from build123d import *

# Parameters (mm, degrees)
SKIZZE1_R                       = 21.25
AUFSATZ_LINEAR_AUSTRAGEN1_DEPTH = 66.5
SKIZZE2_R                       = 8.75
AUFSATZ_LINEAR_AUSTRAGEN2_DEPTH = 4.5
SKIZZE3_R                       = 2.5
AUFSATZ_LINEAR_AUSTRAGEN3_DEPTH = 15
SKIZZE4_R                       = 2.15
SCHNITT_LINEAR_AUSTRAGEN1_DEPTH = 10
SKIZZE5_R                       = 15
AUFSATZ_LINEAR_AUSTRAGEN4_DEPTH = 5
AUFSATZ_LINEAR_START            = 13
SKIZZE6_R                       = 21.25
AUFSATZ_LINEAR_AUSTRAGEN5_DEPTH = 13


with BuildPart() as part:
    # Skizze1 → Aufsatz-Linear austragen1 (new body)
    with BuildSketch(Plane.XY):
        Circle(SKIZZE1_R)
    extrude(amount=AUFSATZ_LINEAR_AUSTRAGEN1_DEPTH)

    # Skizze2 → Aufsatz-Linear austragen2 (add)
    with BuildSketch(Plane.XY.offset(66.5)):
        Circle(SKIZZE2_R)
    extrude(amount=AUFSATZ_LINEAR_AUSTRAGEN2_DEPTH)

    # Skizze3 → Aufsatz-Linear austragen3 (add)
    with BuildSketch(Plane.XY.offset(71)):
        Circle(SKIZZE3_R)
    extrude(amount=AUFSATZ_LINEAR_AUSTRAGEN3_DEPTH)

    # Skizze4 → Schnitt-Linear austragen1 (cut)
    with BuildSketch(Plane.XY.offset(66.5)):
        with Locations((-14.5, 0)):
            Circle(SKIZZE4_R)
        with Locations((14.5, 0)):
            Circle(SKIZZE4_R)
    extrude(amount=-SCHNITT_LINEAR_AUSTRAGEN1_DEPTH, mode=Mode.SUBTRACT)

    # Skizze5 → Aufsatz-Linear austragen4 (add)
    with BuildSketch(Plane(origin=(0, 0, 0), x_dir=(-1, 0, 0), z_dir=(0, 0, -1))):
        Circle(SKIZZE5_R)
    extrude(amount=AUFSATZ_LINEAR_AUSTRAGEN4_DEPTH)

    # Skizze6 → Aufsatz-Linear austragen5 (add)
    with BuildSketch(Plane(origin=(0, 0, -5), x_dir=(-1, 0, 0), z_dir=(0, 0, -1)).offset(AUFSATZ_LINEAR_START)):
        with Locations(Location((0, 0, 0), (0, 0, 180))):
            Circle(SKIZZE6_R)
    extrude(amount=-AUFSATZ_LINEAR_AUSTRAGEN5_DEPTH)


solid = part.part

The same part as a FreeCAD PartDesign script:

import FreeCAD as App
import Part
import Sketcher
from FreeCAD import Vector

doc = App.newDocument("Part")
body = doc.addObject("PartDesign::Body", "Body")

# Sketch on XY plane
sketch1 = body.newObject("Sketcher::SketchObject", "Sketch")
sketch1.AttachmentSupport = (doc.getObject("XY_Plane"), [""])
sketch1.MapMode = "FlatFace"
sketch1.addGeometry(Part.Circle(Vector(0, 0, 0), Vector(0, 0, 1), 21), False)
sketch1.addConstraint([
    Sketcher.Constraint("Coincident", 0, 3, -1, 1),
    Sketcher.Constraint("Diameter", 0, 42.5),
])
pad1 = body.newObject("PartDesign::Pad", "Pad")
pad1.Profile = sketch1
pad1.Length = 66.5

# Sketch on XY plane
sketch2 = body.newObject("Sketcher::SketchObject", "Sketch001")
sketch2.AttachmentSupport = (doc.getObject("XY_Plane"), [""])
sketch2.MapMode = "FlatFace"
sketch2.AttachmentOffset = App.Placement(Vector(0, 0, 66.5), App.Rotation())
sketch2.addGeometry(Part.Circle(Vector(0, 0, 0), Vector(0, 0, 1), 9), False)
sketch2.addConstraint([
    Sketcher.Constraint("Coincident", 0, 3, -1, 1),
    Sketcher.Constraint("Diameter", 0, 17.5),
])
pad2 = body.newObject("PartDesign::Pad", "Pad001")
pad2.Profile = sketch2
pad2.Length = 4.5

# Sketch on XY plane
sketch3 = body.newObject("Sketcher::SketchObject", "Sketch002")
sketch3.AttachmentSupport = (doc.getObject("XY_Plane"), [""])
sketch3.MapMode = "FlatFace"
sketch3.AttachmentOffset = App.Placement(Vector(0, 0, 71), App.Rotation())
sketch3.addGeometry(Part.Circle(Vector(0, 0, 0), Vector(0, 0, 1), 2.5), False)
sketch3.addConstraint([
    Sketcher.Constraint("Coincident", 0, 3, -1, 1),
    Sketcher.Constraint("Diameter", 0, 5.0),
])
pad3 = body.newObject("PartDesign::Pad", "Pad002")
pad3.Profile = sketch3
pad3.Length = 15

# Sketch on XY plane
sketch4 = body.newObject("Sketcher::SketchObject", "Sketch003")
sketch4.AttachmentSupport = (doc.getObject("XY_Plane"), [""])
sketch4.MapMode = "FlatFace"
sketch4.AttachmentOffset = App.Placement(Vector(0, 0, 66.5), App.Rotation())
sketch4.addGeometry([
    Part.Circle(Vector(-14.5, 0, 0), Vector(0, 0, 1), 2.1),
    Part.Circle(Vector(14.5, 0, 0), Vector(0, 0, 1), 2.1),
], False)
sketch4.addConstraint([
    Sketcher.Constraint("Equal", 0, 1),
    Sketcher.Constraint("Symmetric", 0, 3, 1, 3, -1, 1),
    Sketcher.Constraint("PointOnObject", 0, 3, -1),
    Sketcher.Constraint("Diameter", 0, 4.3),
    Sketcher.Constraint("DistanceX", 0, 3, 1, 3, 29.0),
])
pocket1 = body.newObject("PartDesign::Pocket", "Pocket")
pocket1.Profile = sketch4
pocket1.Length = 10

# Sketch on XY plane
sketch5 = body.newObject("Sketcher::SketchObject", "Sketch004")
sketch5.AttachmentSupport = (doc.getObject("XY_Plane"), [""])
sketch5.MapMode = "FlatFace"
sketch5.addGeometry(Part.Circle(Vector(0, 0, 0), Vector(0, 0, 1), 15), False)
sketch5.addConstraint([
    Sketcher.Constraint("Coincident", 0, 3, -1, 1),
    Sketcher.Constraint("Diameter", 0, 30.0),
])
pad4 = body.newObject("PartDesign::Pad", "Pad003")
pad4.Profile = sketch5
pad4.Length = 5
pad4.Reversed = True

# Sketch on XY plane
sketch6 = body.newObject("Sketcher::SketchObject", "Sketch005")
sketch6.AttachmentSupport = (doc.getObject("XY_Plane"), [""])
sketch6.MapMode = "FlatFace"
sketch6.AttachmentOffset = App.Placement(Vector(0, 0, -18), App.Rotation())
sketch6.addGeometry(Part.Circle(Vector(0, 0, 0), Vector(0, 0, 1), 21), False)
sketch6.addConstraint([
    Sketcher.Constraint("Coincident", 0, 3, -1, 1),
    Sketcher.Constraint("Diameter", 0, 42.5),
])
pad5 = body.newObject("PartDesign::Pad", "Pad004")
pad5.Profile = sketch6
pad5.Length = 13

doc.recompute()
